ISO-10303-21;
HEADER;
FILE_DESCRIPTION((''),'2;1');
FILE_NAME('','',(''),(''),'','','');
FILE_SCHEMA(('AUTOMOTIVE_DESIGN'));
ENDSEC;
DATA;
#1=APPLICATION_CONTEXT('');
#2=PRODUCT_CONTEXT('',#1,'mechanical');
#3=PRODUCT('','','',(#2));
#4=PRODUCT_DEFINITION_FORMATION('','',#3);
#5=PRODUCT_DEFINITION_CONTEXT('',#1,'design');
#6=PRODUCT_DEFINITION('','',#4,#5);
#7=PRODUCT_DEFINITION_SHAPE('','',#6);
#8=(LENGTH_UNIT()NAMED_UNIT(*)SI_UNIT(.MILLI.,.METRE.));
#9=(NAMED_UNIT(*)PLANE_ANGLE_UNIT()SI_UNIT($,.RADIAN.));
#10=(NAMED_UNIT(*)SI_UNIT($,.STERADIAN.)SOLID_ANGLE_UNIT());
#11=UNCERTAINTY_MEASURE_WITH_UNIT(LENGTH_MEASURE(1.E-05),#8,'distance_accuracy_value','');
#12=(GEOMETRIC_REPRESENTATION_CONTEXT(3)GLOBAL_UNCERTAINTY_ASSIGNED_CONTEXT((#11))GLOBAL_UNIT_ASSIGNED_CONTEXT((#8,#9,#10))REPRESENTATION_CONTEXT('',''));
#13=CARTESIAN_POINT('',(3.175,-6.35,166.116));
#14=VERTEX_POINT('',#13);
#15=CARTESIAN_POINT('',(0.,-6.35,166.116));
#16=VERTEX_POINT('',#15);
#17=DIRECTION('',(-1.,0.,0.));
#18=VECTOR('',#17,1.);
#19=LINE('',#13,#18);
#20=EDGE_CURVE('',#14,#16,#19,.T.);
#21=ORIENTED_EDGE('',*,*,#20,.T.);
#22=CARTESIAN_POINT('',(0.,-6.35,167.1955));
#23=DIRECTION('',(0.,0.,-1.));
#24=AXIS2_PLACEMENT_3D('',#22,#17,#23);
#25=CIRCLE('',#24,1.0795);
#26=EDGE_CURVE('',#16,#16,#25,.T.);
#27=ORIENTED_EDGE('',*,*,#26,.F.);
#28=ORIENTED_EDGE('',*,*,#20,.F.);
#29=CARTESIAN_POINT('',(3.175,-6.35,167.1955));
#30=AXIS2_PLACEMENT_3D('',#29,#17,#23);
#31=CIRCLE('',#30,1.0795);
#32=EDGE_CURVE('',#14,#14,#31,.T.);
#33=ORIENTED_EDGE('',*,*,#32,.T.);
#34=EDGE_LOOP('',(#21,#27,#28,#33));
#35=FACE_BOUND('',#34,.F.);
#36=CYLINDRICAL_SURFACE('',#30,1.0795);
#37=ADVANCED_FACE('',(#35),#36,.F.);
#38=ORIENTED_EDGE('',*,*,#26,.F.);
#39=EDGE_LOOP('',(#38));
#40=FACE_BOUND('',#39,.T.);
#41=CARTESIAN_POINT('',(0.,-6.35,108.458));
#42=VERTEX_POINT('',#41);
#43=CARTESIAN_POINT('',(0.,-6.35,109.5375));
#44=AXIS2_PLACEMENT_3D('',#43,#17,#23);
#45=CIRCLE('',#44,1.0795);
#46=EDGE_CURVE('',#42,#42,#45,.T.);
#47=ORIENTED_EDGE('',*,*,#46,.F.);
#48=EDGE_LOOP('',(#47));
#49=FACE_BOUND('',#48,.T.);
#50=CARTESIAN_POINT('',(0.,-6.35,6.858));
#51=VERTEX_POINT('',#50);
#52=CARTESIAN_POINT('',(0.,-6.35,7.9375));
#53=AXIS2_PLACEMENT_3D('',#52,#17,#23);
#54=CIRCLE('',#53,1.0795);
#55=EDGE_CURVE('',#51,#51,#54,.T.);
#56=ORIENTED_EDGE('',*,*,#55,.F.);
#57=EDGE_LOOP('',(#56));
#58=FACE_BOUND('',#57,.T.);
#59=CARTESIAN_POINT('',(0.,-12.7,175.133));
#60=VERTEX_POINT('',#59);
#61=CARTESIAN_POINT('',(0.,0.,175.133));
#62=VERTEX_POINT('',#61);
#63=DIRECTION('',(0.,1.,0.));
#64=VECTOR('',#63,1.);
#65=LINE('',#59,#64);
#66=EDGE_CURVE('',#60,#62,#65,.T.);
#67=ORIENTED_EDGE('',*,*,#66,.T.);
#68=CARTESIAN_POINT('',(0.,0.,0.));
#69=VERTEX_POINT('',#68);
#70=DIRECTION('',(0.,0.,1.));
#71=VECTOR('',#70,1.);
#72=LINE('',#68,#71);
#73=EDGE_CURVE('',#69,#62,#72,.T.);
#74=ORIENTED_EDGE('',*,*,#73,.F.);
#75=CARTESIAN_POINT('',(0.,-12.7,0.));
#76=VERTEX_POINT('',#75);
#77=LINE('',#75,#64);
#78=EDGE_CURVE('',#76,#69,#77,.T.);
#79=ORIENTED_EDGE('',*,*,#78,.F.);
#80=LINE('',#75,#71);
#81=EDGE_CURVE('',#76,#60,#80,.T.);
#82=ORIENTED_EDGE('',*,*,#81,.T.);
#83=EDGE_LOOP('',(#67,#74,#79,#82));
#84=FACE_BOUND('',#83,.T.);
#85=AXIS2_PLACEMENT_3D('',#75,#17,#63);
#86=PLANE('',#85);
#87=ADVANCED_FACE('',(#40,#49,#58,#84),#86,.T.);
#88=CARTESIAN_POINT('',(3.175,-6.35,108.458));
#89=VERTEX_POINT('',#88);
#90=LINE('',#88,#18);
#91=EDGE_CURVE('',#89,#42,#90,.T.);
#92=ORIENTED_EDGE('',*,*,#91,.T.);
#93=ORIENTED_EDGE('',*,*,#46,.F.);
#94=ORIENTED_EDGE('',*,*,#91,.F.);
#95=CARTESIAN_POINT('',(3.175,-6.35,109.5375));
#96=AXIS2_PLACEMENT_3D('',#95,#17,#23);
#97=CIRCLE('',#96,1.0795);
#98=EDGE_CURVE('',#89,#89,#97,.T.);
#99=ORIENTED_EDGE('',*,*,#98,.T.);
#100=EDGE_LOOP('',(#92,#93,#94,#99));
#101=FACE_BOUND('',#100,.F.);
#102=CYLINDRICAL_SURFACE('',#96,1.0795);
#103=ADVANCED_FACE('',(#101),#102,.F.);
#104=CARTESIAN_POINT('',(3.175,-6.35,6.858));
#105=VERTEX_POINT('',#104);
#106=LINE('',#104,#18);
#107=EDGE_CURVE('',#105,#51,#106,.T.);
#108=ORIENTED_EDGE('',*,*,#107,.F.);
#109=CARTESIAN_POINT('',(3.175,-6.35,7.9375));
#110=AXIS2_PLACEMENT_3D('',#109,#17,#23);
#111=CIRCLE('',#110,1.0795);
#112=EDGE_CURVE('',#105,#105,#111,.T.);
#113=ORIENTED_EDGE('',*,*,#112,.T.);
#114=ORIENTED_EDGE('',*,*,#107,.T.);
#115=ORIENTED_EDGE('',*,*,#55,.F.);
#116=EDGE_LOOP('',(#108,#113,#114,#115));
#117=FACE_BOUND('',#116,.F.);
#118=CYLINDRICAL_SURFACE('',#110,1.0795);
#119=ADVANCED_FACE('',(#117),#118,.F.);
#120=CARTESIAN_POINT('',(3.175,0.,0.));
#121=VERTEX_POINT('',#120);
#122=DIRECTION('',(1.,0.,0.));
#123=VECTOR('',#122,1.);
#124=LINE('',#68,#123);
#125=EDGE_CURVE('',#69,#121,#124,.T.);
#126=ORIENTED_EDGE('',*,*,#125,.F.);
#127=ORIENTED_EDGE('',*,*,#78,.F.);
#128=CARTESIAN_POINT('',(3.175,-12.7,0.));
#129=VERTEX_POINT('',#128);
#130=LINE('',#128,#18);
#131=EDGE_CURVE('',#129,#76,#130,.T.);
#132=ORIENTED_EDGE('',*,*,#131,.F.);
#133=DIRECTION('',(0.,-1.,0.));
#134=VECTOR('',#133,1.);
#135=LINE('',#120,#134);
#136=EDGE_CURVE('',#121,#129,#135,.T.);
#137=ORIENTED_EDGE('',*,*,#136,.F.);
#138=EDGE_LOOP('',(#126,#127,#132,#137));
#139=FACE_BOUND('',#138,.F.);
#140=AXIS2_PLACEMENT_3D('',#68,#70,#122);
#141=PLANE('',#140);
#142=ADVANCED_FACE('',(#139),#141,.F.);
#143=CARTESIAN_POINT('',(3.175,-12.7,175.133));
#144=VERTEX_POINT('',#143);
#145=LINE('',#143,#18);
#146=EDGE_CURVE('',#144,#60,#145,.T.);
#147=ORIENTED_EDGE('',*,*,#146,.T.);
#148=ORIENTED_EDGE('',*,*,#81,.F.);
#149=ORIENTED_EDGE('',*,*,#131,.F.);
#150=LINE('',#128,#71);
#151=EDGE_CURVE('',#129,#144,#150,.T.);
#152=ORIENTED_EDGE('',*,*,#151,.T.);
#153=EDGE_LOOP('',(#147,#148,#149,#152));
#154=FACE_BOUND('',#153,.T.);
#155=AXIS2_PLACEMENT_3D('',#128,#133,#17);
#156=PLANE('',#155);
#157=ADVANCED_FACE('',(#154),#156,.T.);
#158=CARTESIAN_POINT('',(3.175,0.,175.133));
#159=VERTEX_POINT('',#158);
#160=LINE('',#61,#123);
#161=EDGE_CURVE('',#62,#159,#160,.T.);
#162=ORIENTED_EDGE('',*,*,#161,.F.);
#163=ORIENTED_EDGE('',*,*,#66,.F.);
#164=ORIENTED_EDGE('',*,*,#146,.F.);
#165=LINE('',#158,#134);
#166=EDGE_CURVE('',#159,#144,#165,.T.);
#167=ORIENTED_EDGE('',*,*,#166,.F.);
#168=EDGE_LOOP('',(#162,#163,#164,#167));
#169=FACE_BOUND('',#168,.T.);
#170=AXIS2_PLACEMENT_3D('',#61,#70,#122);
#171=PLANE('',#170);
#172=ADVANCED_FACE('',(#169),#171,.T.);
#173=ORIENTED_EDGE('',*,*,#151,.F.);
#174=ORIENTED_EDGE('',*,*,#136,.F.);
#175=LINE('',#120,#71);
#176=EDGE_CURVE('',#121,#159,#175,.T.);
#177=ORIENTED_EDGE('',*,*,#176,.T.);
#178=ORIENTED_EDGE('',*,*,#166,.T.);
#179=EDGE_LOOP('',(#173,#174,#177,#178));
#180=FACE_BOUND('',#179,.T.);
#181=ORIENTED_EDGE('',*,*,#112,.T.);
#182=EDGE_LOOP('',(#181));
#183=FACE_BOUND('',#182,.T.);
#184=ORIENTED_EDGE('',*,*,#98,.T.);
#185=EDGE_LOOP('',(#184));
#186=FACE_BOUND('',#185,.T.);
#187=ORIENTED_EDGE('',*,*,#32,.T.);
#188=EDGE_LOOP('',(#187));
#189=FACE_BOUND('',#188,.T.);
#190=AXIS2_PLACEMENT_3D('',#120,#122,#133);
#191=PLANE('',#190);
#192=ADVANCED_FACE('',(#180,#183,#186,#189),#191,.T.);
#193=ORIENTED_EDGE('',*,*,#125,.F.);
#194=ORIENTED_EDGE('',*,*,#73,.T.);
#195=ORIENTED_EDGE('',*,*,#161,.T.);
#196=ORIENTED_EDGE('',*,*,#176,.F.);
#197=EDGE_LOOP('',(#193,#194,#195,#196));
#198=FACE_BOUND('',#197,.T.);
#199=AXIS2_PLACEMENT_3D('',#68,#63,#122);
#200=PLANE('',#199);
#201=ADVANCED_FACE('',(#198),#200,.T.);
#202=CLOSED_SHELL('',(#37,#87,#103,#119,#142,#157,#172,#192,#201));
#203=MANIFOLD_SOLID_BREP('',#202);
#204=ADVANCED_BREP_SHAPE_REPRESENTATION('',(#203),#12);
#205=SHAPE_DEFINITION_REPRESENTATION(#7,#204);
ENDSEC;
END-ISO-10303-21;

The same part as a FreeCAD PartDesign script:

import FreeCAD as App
import Part
import Sketcher
Q = App.Units.Quantity


def add_polygon(sketch, points):
    """Adds a closed chain of lines whose ends are joined by coincident constraints."""
    first, n = sketch.GeometryCount, len(points)
    for a, b in zip(points, points[1:] + points[:1]):
        sketch.addGeometry(Part.LineSegment(App.Vector(*a, 0), App.Vector(*b, 0)), False)
    for i in range(n):
        sketch.addConstraint(Sketcher.Constraint("Coincident", first + i, 2, first + (i + 1) % n, 1))

doc = App.newDocument("Part")
body = doc.addObject("PartDesign::Body", "Body")

sketch1 = doc.addObject("Sketcher::SketchObject", "Sketch")
body.addObject(sketch1)
sketch1.AttachmentSupport = (doc.XY_Plane, [""])
sketch1.MapMode = "FlatFace"
add_polygon(sketch1, [(3.2, 0), (0, 0), (0, -12.7), (3.2, -12.7)])
sketch1.addConstraint([
    Sketcher.Constraint("Horizontal", 0),
    Sketcher.Constraint("Vertical", 1),
    Sketcher.Constraint("Horizontal", 2),
    Sketcher.Constraint("Vertical", 3),
    Sketcher.Constraint("Coincident", 0, 2, -1, 1),
    Sketcher.Constraint("DistanceY", 1, 2, 1, 1, Q("0.5 in")),
    Sketcher.Constraint("DistanceX", 0, 2, 0, 1, Q("0.125 in")),
])
pad1 = doc.addObject("PartDesign::Pad", "Pad")
body.addObject(pad1)
pad1.Profile = sketch1
pad1.Length = Q("6.895 in")

sketch2 = doc.addObject("Sketcher::SketchObject", "Sketch001")
body.addObject(sketch2)
sketch2.AttachmentSupport = (doc.YZ_Plane, [""])
sketch2.MapMode = "FlatFace"
sketch2.AttachmentOffset = App.Placement(App.Vector(0, 0, 0.125 * 25.4), App.Rotation())
sketch2.addGeometry([
    Part.Circle(App.Vector(-6.3, 7.9, 0), App.Vector(0, 0, 1), 0.8),
    Part.Circle(App.Vector(-6.3, 109.5, 0), App.Vector(0, 0, 1), 0.8),
    Part.Circle(App.Vector(-6.3, 167.2, 0), App.Vector(0, 0, 1), 0.8),
], False)
sketch2.addConstraint([
    Sketcher.Constraint("Equal", 0, 1),
    Sketcher.Constraint("Equal", 1, 2),
    Sketcher.Constraint("Vertical", 0, 3, 1, 3),
    Sketcher.Constraint("Vertical", 1, 3, 2, 3),
    Sketcher.Constraint("Diameter", 0, Q("0.0625 in")),
    Sketcher.Constraint("DistanceY", 0, 3, 1, 3, Q("4 in")),
    Sketcher.Constraint("DistanceY", 1, 3, 2, 3, Q("2.27 in")),
    Sketcher.Constraint("DistanceY", -1, 1, 0, 3, Q("0.3125 in")),
    Sketcher.Constraint("DistanceX", 0, 3, -1, 1, Q("0.25 in")),
])
pocket1 = doc.addObject("PartDesign::Pocket", "Pocket")
body.addObject(pocket1)
pocket1.Profile = sketch2
pocket1.Length = Q("1 in")

sketch3 = doc.addObject("Sketcher::SketchObject", "Sketch002")
body.addObject(sketch3)
sketch3.AttachmentSupport = (doc.YZ_Plane, [""])
sketch3.MapMode = "FlatFace"
sketch3.AttachmentOffset = App.Placement(App.Vector(0, 0, 0.125 * 25.4), App.Rotation())
sketch3.addGeometry(Part.Circle(App.Vector(-6.3, 109.5, 0), App.Vector(0, 0, 1), 1.1), False)
sketch3.addConstraint([
    Sketcher.Constraint("Diameter", 0, Q("0.085 in")),
    Sketcher.Constraint("DistanceX", 0, 3, -1, 1, Q("0.25 in")),
    Sketcher.Constraint("DistanceY", -1, 1, 0, 3, Q("4.3125 in")),
])
doc.recompute()
hole = doc.addObject("PartDesign::Hole", "Hole")
body.addObject(hole)
hole.Profile = sketch3
hole.ThreadType = "None"
hole.Diameter = Q("0.085 in")
hole.DepthType = "ThroughAll"

sketch4 = doc.addObject("Sketcher::SketchObject", "Sketch003")
body.addObject(sketch4)
sketch4.AttachmentSupport = (doc.YZ_Plane, [""])
sketch4.MapMode = "FlatFace"
sketch4.AttachmentOffset = App.Placement(App.Vector(0, 0, 0.125 * 25.4), App.Rotation())
sketch4.addGeometry(Part.Circle(App.Vector(-6.3, 167.2, 0), App.Vector(0, 0, 1), 1.1), False)
sketch4.addConstraint([
    Sketcher.Constraint("Diameter", 0, Q("0.085 in")),
    Sketcher.Constraint("DistanceX", 0, 3, -1, 1, Q("0.25 in")),
    Sketcher.Constraint("DistanceY", -1, 1, 0, 3, Q("6.5825 in")),
])
doc.recompute()
hole2 = doc.addObject("PartDesign::Hole", "Hole001")
body.addObject(hole2)
hole2.Profile = sketch4
hole2.ThreadType = "None"
hole2.Diameter = Q("0.085 in")
hole2.DepthType = "ThroughAll"

sketch5 = doc.addObject("Sketcher::SketchObject", "Sketch004")
body.addObject(sketch5)
sketch5.AttachmentSupport = (doc.YZ_Plane, [""])
sketch5.MapMode = "FlatFace"
sketch5.AttachmentOffset = App.Placement(App.Vector(0, 0, 0.125 * 25.4), App.Rotation())
sketch5.addGeometry(Part.Circle(App.Vector(-6.3, 7.9, 0), App.Vector(0, 0, 1), 1.1), False)
sketch5.addConstraint([
    Sketcher.Constraint("Diameter", 0, Q("0.085 in")),
    Sketcher.Constraint("DistanceX", 0, 3, -1, 1, Q("0.25 in")),
    Sketcher.Constraint("DistanceY", -1, 1, 0, 3, Q("0.3125 in")),
])
doc.recompute()
hole3 = doc.addObject("PartDesign::Hole", "Hole002")
body.addObject(hole3)
hole3.Profile = sketch5
hole3.ThreadType = "None"
hole3.Diameter = Q("0.085 in")
hole3.DepthType = "ThroughAll"

doc.recompute()
